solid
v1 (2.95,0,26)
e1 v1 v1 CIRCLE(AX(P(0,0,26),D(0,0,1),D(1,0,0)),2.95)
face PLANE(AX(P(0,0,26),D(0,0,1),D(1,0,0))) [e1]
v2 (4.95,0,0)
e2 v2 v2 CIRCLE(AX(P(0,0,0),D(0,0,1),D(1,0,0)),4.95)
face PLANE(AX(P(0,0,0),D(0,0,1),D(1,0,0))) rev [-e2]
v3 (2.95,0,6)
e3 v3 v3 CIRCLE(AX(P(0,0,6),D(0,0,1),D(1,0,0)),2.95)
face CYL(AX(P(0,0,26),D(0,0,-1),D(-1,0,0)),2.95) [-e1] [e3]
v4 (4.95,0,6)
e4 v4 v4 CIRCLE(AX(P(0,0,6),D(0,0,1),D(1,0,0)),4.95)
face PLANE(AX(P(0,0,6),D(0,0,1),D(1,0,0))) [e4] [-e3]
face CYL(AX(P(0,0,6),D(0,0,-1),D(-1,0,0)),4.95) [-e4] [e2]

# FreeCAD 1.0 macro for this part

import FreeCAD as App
import Part
import Sketcher
Q = App.Units.Quantity

doc = App.newDocument("Part")
body = doc.addObject("PartDesign::Body", "Body")

# Sketch on XY plane
sketch1 = body.newObject("Sketcher::SketchObject", "Sketch")
sketch1.AttachmentSupport = (doc.getObject("XY_Plane"), [""])
sketch1.MapMode = "FlatFace"
sketch1.addGeometry(Part.Circle(App.Vector(0, 0, 0), App.Vector(0, 0, 1), 4.95), False)
sketch1.addConstraint(Sketcher.Constraint("Coincident", 0, 3, -1, 1))
sketch1.addConstraint(Sketcher.Constraint("Diameter", 0, Q("9.9 mm")))
pad1 = body.newObject("PartDesign::Pad", "Pad")
pad1.Profile = sketch1
pad1.Length = 6

# Sketch on XY plane
sketch2 = body.newObject("Sketcher::SketchObject", "Sketch001")
sketch2.AttachmentSupport = (doc.getObject("XY_Plane"), [""])
sketch2.MapMode = "FlatFace"
sketch2.AttachmentOffset = App.Placement(App.Vector(0, 0, 6), App.Rotation())
sketch2.addGeometry(Part.Circle(App.Vector(0, 0, 0), App.Vector(0, 0, 1), 2.95), False)
sketch2.addConstraint(Sketcher.Constraint("Coincident", 0, 3, -1, 1))
sketch2.addConstraint(Sketcher.Constraint("Diameter", 0, Q("5.9 mm")))
pad2 = body.newObject("PartDesign::Pad", "Pad001")
pad2.Profile = sketch2
pad2.Length = 20

doc.recompute()
